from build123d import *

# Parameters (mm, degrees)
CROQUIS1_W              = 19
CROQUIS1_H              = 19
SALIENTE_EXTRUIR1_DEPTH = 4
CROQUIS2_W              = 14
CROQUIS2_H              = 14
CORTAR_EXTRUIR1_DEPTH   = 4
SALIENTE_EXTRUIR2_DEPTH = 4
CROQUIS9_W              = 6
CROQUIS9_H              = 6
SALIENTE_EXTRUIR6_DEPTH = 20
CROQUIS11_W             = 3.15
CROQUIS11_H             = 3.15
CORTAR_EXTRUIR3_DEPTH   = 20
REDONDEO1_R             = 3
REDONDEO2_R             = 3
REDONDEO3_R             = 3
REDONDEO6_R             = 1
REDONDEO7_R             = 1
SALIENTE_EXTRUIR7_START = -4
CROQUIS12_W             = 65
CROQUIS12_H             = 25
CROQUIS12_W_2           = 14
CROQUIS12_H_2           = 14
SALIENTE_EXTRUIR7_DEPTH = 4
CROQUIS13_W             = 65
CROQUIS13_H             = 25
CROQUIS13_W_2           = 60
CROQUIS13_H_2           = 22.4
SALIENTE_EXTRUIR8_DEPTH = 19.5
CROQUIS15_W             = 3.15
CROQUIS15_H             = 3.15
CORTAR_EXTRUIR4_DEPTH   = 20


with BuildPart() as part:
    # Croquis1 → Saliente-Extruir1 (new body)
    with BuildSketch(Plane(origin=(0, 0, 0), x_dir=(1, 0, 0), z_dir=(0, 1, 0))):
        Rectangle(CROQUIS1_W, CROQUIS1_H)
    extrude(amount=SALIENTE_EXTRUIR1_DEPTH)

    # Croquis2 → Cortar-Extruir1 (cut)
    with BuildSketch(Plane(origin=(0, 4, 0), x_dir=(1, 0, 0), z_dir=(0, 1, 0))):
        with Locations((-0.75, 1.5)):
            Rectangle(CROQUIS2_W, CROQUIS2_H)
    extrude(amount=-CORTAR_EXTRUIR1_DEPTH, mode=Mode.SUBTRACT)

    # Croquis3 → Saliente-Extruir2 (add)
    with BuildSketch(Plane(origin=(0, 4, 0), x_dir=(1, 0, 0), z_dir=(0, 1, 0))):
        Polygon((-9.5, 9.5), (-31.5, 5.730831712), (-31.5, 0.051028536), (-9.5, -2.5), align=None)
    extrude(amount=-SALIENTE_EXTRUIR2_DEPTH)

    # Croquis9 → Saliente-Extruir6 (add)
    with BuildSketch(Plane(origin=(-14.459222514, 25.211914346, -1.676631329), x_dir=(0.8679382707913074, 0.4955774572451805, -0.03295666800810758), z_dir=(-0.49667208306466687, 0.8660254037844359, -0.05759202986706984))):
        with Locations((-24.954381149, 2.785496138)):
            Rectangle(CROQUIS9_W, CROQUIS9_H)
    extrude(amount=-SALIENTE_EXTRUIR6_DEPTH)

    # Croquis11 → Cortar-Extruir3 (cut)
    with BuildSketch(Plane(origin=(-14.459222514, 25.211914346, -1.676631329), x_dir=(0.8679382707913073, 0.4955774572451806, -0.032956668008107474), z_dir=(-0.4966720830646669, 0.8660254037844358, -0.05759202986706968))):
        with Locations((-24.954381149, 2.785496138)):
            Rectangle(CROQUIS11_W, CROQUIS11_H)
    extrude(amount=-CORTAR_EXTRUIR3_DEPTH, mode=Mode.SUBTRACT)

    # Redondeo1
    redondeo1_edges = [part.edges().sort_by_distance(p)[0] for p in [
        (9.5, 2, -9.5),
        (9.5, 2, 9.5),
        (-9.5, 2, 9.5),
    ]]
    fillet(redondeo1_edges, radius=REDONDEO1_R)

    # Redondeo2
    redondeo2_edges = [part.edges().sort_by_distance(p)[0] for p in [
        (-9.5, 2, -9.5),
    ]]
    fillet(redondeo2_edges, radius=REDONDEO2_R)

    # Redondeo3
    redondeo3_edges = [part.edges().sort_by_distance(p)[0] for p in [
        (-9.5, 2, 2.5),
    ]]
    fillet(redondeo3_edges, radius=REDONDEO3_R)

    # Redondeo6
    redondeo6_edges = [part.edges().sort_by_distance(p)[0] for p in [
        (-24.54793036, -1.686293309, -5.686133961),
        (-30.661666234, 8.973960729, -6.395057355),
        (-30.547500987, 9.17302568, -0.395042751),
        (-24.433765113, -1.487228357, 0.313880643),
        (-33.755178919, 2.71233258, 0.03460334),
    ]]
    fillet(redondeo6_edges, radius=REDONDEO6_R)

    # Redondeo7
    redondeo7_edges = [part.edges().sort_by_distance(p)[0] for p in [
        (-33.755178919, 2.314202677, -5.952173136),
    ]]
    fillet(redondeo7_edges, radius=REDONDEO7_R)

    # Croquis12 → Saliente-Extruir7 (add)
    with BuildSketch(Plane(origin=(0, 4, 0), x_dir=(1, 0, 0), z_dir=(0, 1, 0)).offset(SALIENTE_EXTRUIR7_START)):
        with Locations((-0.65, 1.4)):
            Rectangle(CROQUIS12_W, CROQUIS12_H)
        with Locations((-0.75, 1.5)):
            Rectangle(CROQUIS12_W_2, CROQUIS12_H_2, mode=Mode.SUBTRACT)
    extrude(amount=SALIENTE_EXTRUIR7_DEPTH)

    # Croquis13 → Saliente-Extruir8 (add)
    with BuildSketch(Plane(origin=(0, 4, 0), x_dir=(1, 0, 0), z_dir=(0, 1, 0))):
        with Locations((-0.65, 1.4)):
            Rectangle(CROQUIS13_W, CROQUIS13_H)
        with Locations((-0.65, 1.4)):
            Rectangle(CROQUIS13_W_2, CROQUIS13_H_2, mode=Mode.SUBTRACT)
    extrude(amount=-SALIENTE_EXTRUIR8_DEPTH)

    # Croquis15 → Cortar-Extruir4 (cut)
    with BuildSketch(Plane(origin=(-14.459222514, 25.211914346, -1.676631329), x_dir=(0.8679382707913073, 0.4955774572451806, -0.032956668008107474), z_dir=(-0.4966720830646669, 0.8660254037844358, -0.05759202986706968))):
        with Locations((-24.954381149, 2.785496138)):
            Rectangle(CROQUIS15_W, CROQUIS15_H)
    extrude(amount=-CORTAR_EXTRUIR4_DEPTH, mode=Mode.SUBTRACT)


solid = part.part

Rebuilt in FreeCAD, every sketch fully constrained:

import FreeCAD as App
import Part
import Sketcher
Q = App.Units.Quantity


def edges_at(feature, points):
    """Names of the edges that pass closest to the given points."""
    edges = feature.Shape.Edges
    near = lambda p: min(range(len(edges)), key=lambda i: edges[i].distToShape(Part.Vertex(*p))[0])
    return sorted({f"Edge{near(p) + 1}" for p in points})

doc = App.newDocument("Part")
body = doc.addObject("PartDesign::Body", "Body")

# Sketch on XZ plane
sketch1 = doc.addObject("Sketcher::SketchObject", "Sketch")
body.addObject(sketch1)
sketch1.AttachmentSupport = (doc.XZ_Plane, [""])
sketch1.MapMode = "FlatFace"
sketch1.addGeometry(Part.LineSegment(App.Vector(-10, -10, 0), App.Vector(-10, 10, 0)), False)
sketch1.addGeometry(Part.LineSegment(App.Vector(-10, 10, 0), App.Vector(10, 10, 0)), False)
sketch1.addGeometry(Part.LineSegment(App.Vector(10, 10, 0), App.Vector(10, -10, 0)), False)
sketch1.addGeometry(Part.LineSegment(App.Vector(10, -10, 0), App.Vector(-10, -10, 0)), False)
sketch1.addConstraint(Sketcher.Constraint("Coincident", 0, 2, 1, 1))
sketch1.addConstraint(Sketcher.Constraint("Coincident", 1, 2, 2, 1))
sketch1.addConstraint(Sketcher.Constraint("Coincident", 2, 2, 3, 1))
sketch1.addConstraint(Sketcher.Constraint("Coincident", 3, 2, 0, 1))
sketch1.addConstraint(Sketcher.Constraint("Vertical", 0))
sketch1.addConstraint(Sketcher.Constraint("Horizontal", 1))
sketch1.addConstraint(Sketcher.Constraint("Vertical", 2))
sketch1.addConstraint(Sketcher.Constraint("Horizontal", 3))
sketch1.addConstraint(Sketcher.Constraint("Symmetric", 0, 2, 2, 2, -1, 1))
sketch1.addConstraint(Sketcher.Constraint("Equal", 3, 0))
sketch1.addConstraint(Sketcher.Constraint("DistanceX", 1, 1, 1, 2, Q("19 mm")))
pad1 = doc.addObject("PartDesign::Pad", "Pad")
body.addObject(pad1)
pad1.Profile = sketch1
pad1.Length = 4
pad1.Reversed = True

# Sketch on XZ plane
sketch2 = doc.addObject("Sketcher::SketchObject", "Sketch001")
body.addObject(sketch2)
sketch2.AttachmentSupport = (doc.XZ_Plane, [""])
sketch2.MapMode = "FlatFace"
sketch2.AttachmentOffset = App.Placement(App.Vector(0, 0, -4), App.Rotation())
sketch2.addGeometry(Part.LineSegment(App.Vector(-8, -8, 0), App.Vector(-8, 6, 0)), False)
sketch2.addGeometry(Part.LineSegment(App.Vector(-8, 6, 0), App.Vector(6, 6, 0)), False)
sketch2.addGeometry(Part.LineSegment(App.Vector(6, 6, 0), App.Vector(6, -8, 0)), False)
sketch2.addGeometry(Part.LineSegment(App.Vector(6, -8, 0), App.Vector(-8, -8, 0)), False)
sketch2.addConstraint(Sketcher.Constraint("Coincident", 0, 2, 1, 1))
sketch2.addConstraint(Sketcher.Constraint("Coincident", 1, 2, 2, 1))
sketch2.addConstraint(Sketcher.Constraint("Coincident", 2, 2, 3, 1))
sketch2.addConstraint(Sketcher.Constraint("Coincident", 3, 2, 0, 1))
sketch2.addConstraint(Sketcher.Constraint("Vertical", 0))
sketch2.addConstraint(Sketcher.Constraint("Horizontal", 1))
sketch2.addConstraint(Sketcher.Constraint("Vertical", 2))
sketch2.addConstraint(Sketcher.Constraint("Horizontal", 3))
sketch2.addConstraint(Sketcher.Constraint("Equal", 3, 0))
sketch2.addConstraint(Sketcher.Constraint("DistanceX", 1, 1, 1, 2, Q("14 mm")))
sketch2.addConstraint(Sketcher.Constraint("DistanceY", -1, 1, 0, 2, Q("5.5 mm")))
sketch2.addConstraint(Sketcher.Constraint("DistanceX", 0, 2, -1, 1, Q("7.75 mm")))
pocket1 = doc.addObject("PartDesign::Pocket", "Pocket")
body.addObject(pocket1)
pocket1.Profile = sketch2
pocket1.Length = 4
pocket1.Reversed = True

# Sketch on XZ plane
sketch3 = doc.addObject("Sketcher::SketchObject", "Sketch002")
body.addObject(sketch3)
sketch3.AttachmentSupport = (doc.XZ_Plane, [""])
sketch3.MapMode = "FlatFace"
sketch3.AttachmentOffset = App.Placement(App.Vector(0, 0, -4), App.Rotation())
sketch3.addGeometry(Part.LineSegment(App.Vector(-10, -10, 0), App.Vector(-32, -6, 0)), False)
sketch3.addGeometry(Part.LineSegment(App.Vector(-32, -6, 0), App.Vector(-32, 0, 0)), False)
sketch3.addGeometry(Part.LineSegment(App.Vector(-32, 0, 0), App.Vector(-10, 2, 0)), False)
sketch3.addGeometry(Part.LineSegment(App.Vector(-10, 2, 0), App.Vector(-10, -10, 0)), False)
sketch3.addConstraint(Sketcher.Constraint("Coincident", 0, 2, 1, 1))
sketch3.addConstraint(Sketcher.Constraint("Coincident", 1, 2, 2, 1))
sketch3.addConstraint(Sketcher.Constraint("Coincident", 2, 2, 3, 1))
sketch3.addConstraint(Sketcher.Constraint("Coincident", 3, 2, 0, 1))
sketch3.addConstraint(Sketcher.Constraint("Vertical", 1))
sketch3.addConstraint(Sketcher.Constraint("Vertical", 3))
sketch3.addConstraint(Sketcher.Constraint("DistanceY", 3, 2, 3, 1, Q("12 mm")))
sketch3.addConstraint(Sketcher.Constraint("DistanceX", 1, 2, 2, 2, Q("22 mm")))
sketch3.addConstraint(Sketcher.Constraint("DistanceX", 0, 2, -1, 1, Q("31.5 mm")))
sketch3.addConstraint(Sketcher.Constraint("DistanceY", -1, 1, 2, 2, Q("2.5 mm")))
sketch3.addConstraint(Sketcher.Constraint("Distance", 2, Q("22.147409 mm")))
sketch3.addConstraint(Sketcher.Constraint("DistanceY", 1, 1, 1, 2, Q("5.679803 mm")))
pad2 = doc.addObject("PartDesign::Pad", "Pad001")
body.addObject(pad2)
pad2.Profile = sketch3
pad2.Length = 4

# Sketch on an angled plane
sketch4 = doc.addObject("Sketcher::SketchObject", "Sketch003")
body.addObject(sketch4)
sketch4.Placement = App.Placement(App.Vector(-14.459223, 25.211914, -1.676631), App.Rotation(App.Vector(0.867938271, 0.495577457, -0.032956668), App.Vector(0, -0.066354984, -0.99779608), App.Vector(-0.496672083, 0.866025404, -0.05759203), "ZXY"))
sketch4.addGeometry(Part.LineSegment(App.Vector(-28, 6, 0), App.Vector(-28, 0, 0)), False)
sketch4.addGeometry(Part.LineSegment(App.Vector(-28, 0, 0), App.Vector(-22, 0, 0)), False)
sketch4.addGeometry(Part.LineSegment(App.Vector(-22, 0, 0), App.Vector(-22, 6, 0)), False)
sketch4.addGeometry(Part.LineSegment(App.Vector(-22, 6, 0), App.Vector(-28, 6, 0)), False)
sketch4.addConstraint(Sketcher.Constraint("Coincident", 0, 2, 1, 1))
sketch4.addConstraint(Sketcher.Constraint("Coincident", 1, 2, 2, 1))
sketch4.addConstraint(Sketcher.Constraint("Coincident", 2, 2, 3, 1))
sketch4.addConstraint(Sketcher.Constraint("Coincident", 3, 2, 0, 1))
sketch4.addConstraint(Sketcher.Constraint("Vertical", 0))
sketch4.addConstraint(Sketcher.Constraint("Horizontal", 1))
sketch4.addConstraint(Sketcher.Constraint("Vertical", 2))
sketch4.addConstraint(Sketcher.Constraint("Horizontal", 3))
sketch4.addConstraint(Sketcher.Constraint("Equal", 3, 0))
sketch4.addConstraint(Sketcher.Constraint("DistanceX", 1, 1, 1, 2, Q("6 mm")))
sketch4.addConstraint(Sketcher.Constraint("DistanceX", 0, 2, -1, 1, Q("27.954381 mm")))
sketch4.addConstraint(Sketcher.Constraint("DistanceY", 0, 2, -1, 1, Q("0.214504 mm")))
pad3 = doc.addObject("PartDesign::Pad", "Pad002")
body.addObject(pad3)
pad3.Profile = sketch4
pad3.Length = 20
pad3.Reversed = True

# Sketch on an angled plane
sketch5 = doc.addObject("Sketcher::SketchObject", "Sketch004")
body.addObject(sketch5)
sketch5.Placement = App.Placement(App.Vector(-14.459223, 25.211914, -1.676631), App.Rotation(App.Vector(0.867938271, 0.495577457, -0.032956668), App.Vector(0, -0.066354984, -0.99779608), App.Vector(-0.496672083, 0.866025404, -0.05759203), "ZXY"))
sketch5.addGeometry(Part.LineSegment(App.Vector(-26.5, 4.4, 0), App.Vector(-26.5, 1.2, 0)), False)
sketch5.addGeometry(Part.LineSegment(App.Vector(-26.5, 1.2, 0), App.Vector(-23.4, 1.2, 0)), False)
sketch5.addGeometry(Part.LineSegment(App.Vector(-23.4, 1.2, 0), App.Vector(-23.4, 4.4, 0)), False)
sketch5.addGeometry(Part.LineSegment(App.Vector(-23.4, 4.4, 0), App.Vector(-26.5, 4.4, 0)), False)
sketch5.addConstraint(Sketcher.Constraint("Coincident", 0, 2, 1, 1))
sketch5.addConstraint(Sketcher.Constraint("Coincident", 1, 2, 2, 1))
sketch5.addConstraint(Sketcher.Constraint("Coincident", 2, 2, 3, 1))
sketch5.addConstraint(Sketcher.Constraint("Coincident", 3, 2, 0, 1))
sketch5.addConstraint(Sketcher.Constraint("Vertical", 0))
sketch5.addConstraint(Sketcher.Constraint("Horizontal", 1))
sketch5.addConstraint(Sketcher.Constraint("Vertical", 2))
sketch5.addConstraint(Sketcher.Constraint("Horizontal", 3))
sketch5.addConstraint(Sketcher.Constraint("Equal", 3, 0))
sketch5.addConstraint(Sketcher.Constraint("DistanceX", 1, 1, 1, 2, Q("3.15 mm")))
sketch5.addConstraint(Sketcher.Constraint("DistanceX", 0, 2, -1, 1, Q("26.529381 mm")))
sketch5.addConstraint(Sketcher.Constraint("DistanceY", -1, 1, 0, 2, Q("1.210496 mm")))
pocket2 = doc.addObject("PartDesign::Pocket", "Pocket001")
body.addObject(pocket2)
pocket2.Profile = sketch5
pocket2.Length = 20
doc.recompute()

fillet = doc.addObject("PartDesign::Fillet", "Fillet")
body.addObject(fillet)
fillet.Base = (pocket2, edges_at(pocket2, [(9.5, 2, -9.5), (9.5, 2, 9.5), (-9.5, 2, 9.5)]))
fillet.Radius = 3
doc.recompute()

fillet2 = doc.addObject("PartDesign::Fillet", "Fillet001")
body.addObject(fillet2)
fillet2.Base = (fillet, edges_at(fillet, [(-9.5, 2, -9.5)]))
fillet2.Radius = 3
doc.recompute()

fillet3 = doc.addObject("PartDesign::Fillet", "Fillet002")
body.addObject(fillet3)
fillet3.Base = (fillet2, edges_at(fillet2, [(-9.5, 2, 2.5)]))
fillet3.Radius = 3
doc.recompute()

fillet4 = doc.addObject("PartDesign::Fillet", "Fillet003")
body.addObject(fillet4)
fillet4.Base = (fillet3, edges_at(fillet3, [
    (-24.548, -1.686, -5.686),
    (-30.662, 8.974, -6.395),
    (-30.548, 9.173, -0.395),
    (-24.434, -1.487, 0.314),
    (-33.755, 2.712, 0.035),
]))
fillet4.Radius = 1
doc.recompute()

fillet5 = doc.addObject("PartDesign::Fillet", "Fillet004")
body.addObject(fillet5)
fillet5.Base = (fillet4, edges_at(fillet4, [(-33.755, 2.314, -5.952)]))
fillet5.Radius = 1

# Sketch on XZ plane
sketch6 = doc.addObject("Sketcher::SketchObject", "Sketch005")
body.addObject(sketch6)
sketch6.AttachmentSupport = (doc.XZ_Plane, [""])
sketch6.MapMode = "FlatFace"
sketch6.addGeometry(Part.LineSegment(App.Vector(-33, -14, 0), App.Vector(-33, 11, 0)), False)
sketch6.addGeometry(Part.LineSegment(App.Vector(-33, 11, 0), App.Vector(32, 11, 0)), False)
sketch6.addGeometry(Part.LineSegment(App.Vector(32, 11, 0), App.Vector(32, -14, 0)), False)
sketch6.addGeometry(Part.LineSegment(App.Vector(32, -14, 0), App.Vector(-33, -14, 0)), False)
sketch6.addGeometry(Part.LineSegment(App.Vector(6, 6, 0), App.Vector(-8, 6, 0)), False)
sketch6.addGeometry(Part.LineSegment(App.Vector(-8, 6, 0), App.Vector(-8, -8, 0)), False)
sketch6.addGeometry(Part.LineSegment(App.Vector(-8, -8, 0), App.Vector(6, -8, 0)), False)
sketch6.addGeometry(Part.LineSegment(App.Vector(6, -8, 0), App.Vector(6, 6, 0)), False)
sketch6.addConstraint(Sketcher.Constraint("Coincident", 0, 2, 1, 1))
sketch6.addConstraint(Sketcher.Constraint("Coincident", 1, 2, 2, 1))
sketch6.addConstraint(Sketcher.Constraint("Coincident", 2, 2, 3, 1))
sketch6.addConstraint(Sketcher.Constraint("Coincident", 3, 2, 0, 1))
sketch6.addConstraint(Sketcher.Constraint("Coincident", 4, 2, 5, 1))
sketch6.addConstraint(Sketcher.Constraint("Coincident", 5, 2, 6, 1))
sketch6.addConstraint(Sketcher.Constraint("Coincident", 6, 2, 7, 1))
sketch6.addConstraint(Sketcher.Constraint("Coincident", 7, 2, 4, 1))
sketch6.addConstraint(Sketcher.Constraint("Vertical", 0))
sketch6.addConstraint(Sketcher.Constraint("Horizontal", 1))
sketch6.addConstraint(Sketcher.Constraint("Vertical", 2))
sketch6.addConstraint(Sketcher.Constraint("Horizontal", 3))
sketch6.addConstraint(Sketcher.Constraint("Horizontal", 4))
sketch6.addConstraint(Sketcher.Constraint("Vertical", 5))
sketch6.addConstraint(Sketcher.Constraint("Horizontal", 6))
sketch6.addConstraint(Sketcher.Constraint("Vertical", 7))
sketch6.addConstraint(Sketcher.Constraint("Equal", 6, 5))
sketch6.addConstraint(Sketcher.Constraint("DistanceX", 1, 1, 1, 2, Q("65 mm")))
sketch6.addConstraint(Sketcher.Constraint("DistanceX", 4, 2, 4, 1, Q("14 mm")))
sketch6.addConstraint(Sketcher.Constraint("DistanceY", 0, 1, 0, 2, Q("25 mm")))
sketch6.addConstraint(Sketcher.Constraint("DistanceY", -1, 1, 0, 2, Q("11.1 mm")))
sketch6.addConstraint(Sketcher.Constraint("DistanceY", -1, 1, 4, 2, Q("5.5 mm")))
sketch6.addConstraint(Sketcher.Constraint("DistanceX", 0, 2, 4, 2, Q("25.4 mm")))
sketch6.addConstraint(Sketcher.Constraint("DistanceX", 0, 2, -1, 1, Q("33.15 mm")))
pad4 = doc.addObject("PartDesign::Pad", "Pad003")
body.addObject(pad4)
pad4.Profile = sketch6
pad4.Length = 4
pad4.Reversed = True

# Sketch on XZ plane
sketch7 = doc.addObject("Sketcher::SketchObject", "Sketch006")
body.addObject(sketch7)
sketch7.AttachmentSupport = (doc.XZ_Plane, [""])
sketch7.MapMode = "FlatFace"
sketch7.AttachmentOffset = App.Placement(App.Vector(0, 0, -4), App.Rotation())
sketch7.addGeometry(Part.LineSegment(App.Vector(-33, -14, 0), App.Vector(-33, 11, 0)), False)
sketch7.addGeometry(Part.LineSegment(App.Vector(-33, 11, 0), App.Vector(32, 11, 0)), False)
sketch7.addGeometry(Part.LineSegment(App.Vector(32, 11, 0), App.Vector(32, -14, 0)), False)
sketch7.addGeometry(Part.LineSegment(App.Vector(32, -14, 0), App.Vector(-33, -14, 0)), False)
sketch7.addGeometry(Part.LineSegment(App.Vector(29, 10, 0), App.Vector(-31, 10, 0)), False)
sketch7.addGeometry(Part.LineSegment(App.Vector(-31, 10, 0), App.Vector(-31, -13, 0)), False)
sketch7.addGeometry(Part.LineSegment(App.Vector(-31, -13, 0), App.Vector(29, -13, 0)), False)
sketch7.addGeometry(Part.LineSegment(App.Vector(29, -13, 0), App.Vector(29, 10, 0)), False)
sketch7.addConstraint(Sketcher.Constraint("Coincident", 0, 2, 1, 1))
sketch7.addConstraint(Sketcher.Constraint("Coincident", 1, 2, 2, 1))
sketch7.addConstraint(Sketcher.Constraint("Coincident", 2, 2, 3, 1))
sketch7.addConstraint(Sketcher.Constraint("Coincident", 3, 2, 0, 1))
sketch7.addConstraint(Sketcher.Constraint("Coincident", 4, 2, 5, 1))
sketch7.addConstraint(Sketcher.Constraint("Coincident", 5, 2, 6, 1))
sketch7.addConstraint(Sketcher.Constraint("Coincident", 6, 2, 7, 1))
sketch7.addConstraint(Sketcher.Constraint("Coincident", 7, 2, 4, 1))
sketch7.addConstraint(Sketcher.Constraint("Vertical", 0))
sketch7.addConstraint(Sketcher.Constraint("Horizontal", 1))
sketch7.addConstraint(Sketcher.Constraint("Vertical", 2))
sketch7.addConstraint(Sketcher.Constraint("Horizontal", 3))
sketch7.addConstraint(Sketcher.Constraint("Horizontal", 4))
sketch7.addConstraint(Sketcher.Constraint("Vertical", 5))
sketch7.addConstraint(Sketcher.Constraint("Horizontal", 6))
sketch7.addConstraint(Sketcher.Constraint("Vertical", 7))
sketch7.addConstraint(Sketcher.Constraint("DistanceX", 1, 1, 1, 2, Q("65 mm")))
sketch7.addConstraint(Sketcher.Constraint("DistanceX", 4, 2, 4, 1, Q("60 mm")))
sketch7.addConstraint(Sketcher.Constraint("DistanceY", 0, 1, 0, 2, Q("25 mm")))
sketch7.addConstraint(Sketcher.Constraint("DistanceY", 5, 2, 5, 1, Q("22.4 mm")))
sketch7.addConstraint(Sketcher.Constraint("DistanceY", -1, 1, 0, 2, Q("11.1 mm")))
sketch7.addConstraint(Sketcher.Constraint("DistanceY", -1, 1, 4, 2, Q("9.8 mm")))
sketch7.addConstraint(Sketcher.Constraint("DistanceX", 0, 2, 4, 2, Q("2.5 mm")))
sketch7.addConstraint(Sketcher.Constraint("DistanceX", 0, 2, -1, 1, Q("33.15 mm")))
pad5 = doc.addObject("PartDesign::Pad", "Pad004")
body.addObject(pad5)
pad5.Profile = sketch7
pad5.Length = 19.5

# Sketch on an angled plane
sketch8 = doc.addObject("Sketcher::SketchObject", "Sketch007")
body.addObject(sketch8)
sketch8.Placement = App.Placement(App.Vector(-14.459223, 25.211914, -1.676631), App.Rotation(App.Vector(0.867938271, 0.495577457, -0.032956668), App.Vector(0, -0.066354984, -0.99779608), App.Vector(-0.496672083, 0.866025404, -0.05759203), "ZXY"))
sketch8.addGeometry(Part.LineSegment(App.Vector(-26.5, 4.4, 0), App.Vector(-26.5, 1.2, 0)), False)
sketch8.addGeometry(Part.LineSegment(App.Vector(-26.5, 1.2, 0), App.Vector(-23.4, 1.2, 0)), False)
sketch8.addGeometry(Part.LineSegment(App.Vector(-23.4, 1.2, 0), App.Vector(-23.4, 4.4, 0)), False)
sketch8.addGeometry(Part.LineSegment(App.Vector(-23.4, 4.4, 0), App.Vector(-26.5, 4.4, 0)), False)
sketch8.addConstraint(Sketcher.Constraint("Coincident", 0, 2, 1, 1))
sketch8.addConstraint(Sketcher.Constraint("Coincident", 1, 2, 2, 1))
sketch8.addConstraint(Sketcher.Constraint("Coincident", 2, 2, 3, 1))
sketch8.addConstraint(Sketcher.Constraint("Coincident", 3, 2, 0, 1))
sketch8.addConstraint(Sketcher.Constraint("Vertical", 0))
sketch8.addConstraint(Sketcher.Constraint("Horizontal", 1))
sketch8.addConstraint(Sketcher.Constraint("Vertical", 2))
sketch8.addConstraint(Sketcher.Constraint("Horizontal", 3))
sketch8.addConstraint(Sketcher.Constraint("Equal", 3, 0))
sketch8.addConstraint(Sketcher.Constraint("DistanceX", 1, 1, 1, 2, Q("3.15 mm")))
sketch8.addConstraint(Sketcher.Constraint("DistanceX", 0, 2, -1, 1, Q("26.529381 mm")))
sketch8.addConstraint(Sketcher.Constraint("DistanceY", -1, 1, 0, 2, Q("1.210496 mm")))
pocket3 = doc.addObject("PartDesign::Pocket", "Pocket002")
body.addObject(pocket3)
pocket3.Profile = sketch8
pocket3.Length = 20

doc.recompute()
